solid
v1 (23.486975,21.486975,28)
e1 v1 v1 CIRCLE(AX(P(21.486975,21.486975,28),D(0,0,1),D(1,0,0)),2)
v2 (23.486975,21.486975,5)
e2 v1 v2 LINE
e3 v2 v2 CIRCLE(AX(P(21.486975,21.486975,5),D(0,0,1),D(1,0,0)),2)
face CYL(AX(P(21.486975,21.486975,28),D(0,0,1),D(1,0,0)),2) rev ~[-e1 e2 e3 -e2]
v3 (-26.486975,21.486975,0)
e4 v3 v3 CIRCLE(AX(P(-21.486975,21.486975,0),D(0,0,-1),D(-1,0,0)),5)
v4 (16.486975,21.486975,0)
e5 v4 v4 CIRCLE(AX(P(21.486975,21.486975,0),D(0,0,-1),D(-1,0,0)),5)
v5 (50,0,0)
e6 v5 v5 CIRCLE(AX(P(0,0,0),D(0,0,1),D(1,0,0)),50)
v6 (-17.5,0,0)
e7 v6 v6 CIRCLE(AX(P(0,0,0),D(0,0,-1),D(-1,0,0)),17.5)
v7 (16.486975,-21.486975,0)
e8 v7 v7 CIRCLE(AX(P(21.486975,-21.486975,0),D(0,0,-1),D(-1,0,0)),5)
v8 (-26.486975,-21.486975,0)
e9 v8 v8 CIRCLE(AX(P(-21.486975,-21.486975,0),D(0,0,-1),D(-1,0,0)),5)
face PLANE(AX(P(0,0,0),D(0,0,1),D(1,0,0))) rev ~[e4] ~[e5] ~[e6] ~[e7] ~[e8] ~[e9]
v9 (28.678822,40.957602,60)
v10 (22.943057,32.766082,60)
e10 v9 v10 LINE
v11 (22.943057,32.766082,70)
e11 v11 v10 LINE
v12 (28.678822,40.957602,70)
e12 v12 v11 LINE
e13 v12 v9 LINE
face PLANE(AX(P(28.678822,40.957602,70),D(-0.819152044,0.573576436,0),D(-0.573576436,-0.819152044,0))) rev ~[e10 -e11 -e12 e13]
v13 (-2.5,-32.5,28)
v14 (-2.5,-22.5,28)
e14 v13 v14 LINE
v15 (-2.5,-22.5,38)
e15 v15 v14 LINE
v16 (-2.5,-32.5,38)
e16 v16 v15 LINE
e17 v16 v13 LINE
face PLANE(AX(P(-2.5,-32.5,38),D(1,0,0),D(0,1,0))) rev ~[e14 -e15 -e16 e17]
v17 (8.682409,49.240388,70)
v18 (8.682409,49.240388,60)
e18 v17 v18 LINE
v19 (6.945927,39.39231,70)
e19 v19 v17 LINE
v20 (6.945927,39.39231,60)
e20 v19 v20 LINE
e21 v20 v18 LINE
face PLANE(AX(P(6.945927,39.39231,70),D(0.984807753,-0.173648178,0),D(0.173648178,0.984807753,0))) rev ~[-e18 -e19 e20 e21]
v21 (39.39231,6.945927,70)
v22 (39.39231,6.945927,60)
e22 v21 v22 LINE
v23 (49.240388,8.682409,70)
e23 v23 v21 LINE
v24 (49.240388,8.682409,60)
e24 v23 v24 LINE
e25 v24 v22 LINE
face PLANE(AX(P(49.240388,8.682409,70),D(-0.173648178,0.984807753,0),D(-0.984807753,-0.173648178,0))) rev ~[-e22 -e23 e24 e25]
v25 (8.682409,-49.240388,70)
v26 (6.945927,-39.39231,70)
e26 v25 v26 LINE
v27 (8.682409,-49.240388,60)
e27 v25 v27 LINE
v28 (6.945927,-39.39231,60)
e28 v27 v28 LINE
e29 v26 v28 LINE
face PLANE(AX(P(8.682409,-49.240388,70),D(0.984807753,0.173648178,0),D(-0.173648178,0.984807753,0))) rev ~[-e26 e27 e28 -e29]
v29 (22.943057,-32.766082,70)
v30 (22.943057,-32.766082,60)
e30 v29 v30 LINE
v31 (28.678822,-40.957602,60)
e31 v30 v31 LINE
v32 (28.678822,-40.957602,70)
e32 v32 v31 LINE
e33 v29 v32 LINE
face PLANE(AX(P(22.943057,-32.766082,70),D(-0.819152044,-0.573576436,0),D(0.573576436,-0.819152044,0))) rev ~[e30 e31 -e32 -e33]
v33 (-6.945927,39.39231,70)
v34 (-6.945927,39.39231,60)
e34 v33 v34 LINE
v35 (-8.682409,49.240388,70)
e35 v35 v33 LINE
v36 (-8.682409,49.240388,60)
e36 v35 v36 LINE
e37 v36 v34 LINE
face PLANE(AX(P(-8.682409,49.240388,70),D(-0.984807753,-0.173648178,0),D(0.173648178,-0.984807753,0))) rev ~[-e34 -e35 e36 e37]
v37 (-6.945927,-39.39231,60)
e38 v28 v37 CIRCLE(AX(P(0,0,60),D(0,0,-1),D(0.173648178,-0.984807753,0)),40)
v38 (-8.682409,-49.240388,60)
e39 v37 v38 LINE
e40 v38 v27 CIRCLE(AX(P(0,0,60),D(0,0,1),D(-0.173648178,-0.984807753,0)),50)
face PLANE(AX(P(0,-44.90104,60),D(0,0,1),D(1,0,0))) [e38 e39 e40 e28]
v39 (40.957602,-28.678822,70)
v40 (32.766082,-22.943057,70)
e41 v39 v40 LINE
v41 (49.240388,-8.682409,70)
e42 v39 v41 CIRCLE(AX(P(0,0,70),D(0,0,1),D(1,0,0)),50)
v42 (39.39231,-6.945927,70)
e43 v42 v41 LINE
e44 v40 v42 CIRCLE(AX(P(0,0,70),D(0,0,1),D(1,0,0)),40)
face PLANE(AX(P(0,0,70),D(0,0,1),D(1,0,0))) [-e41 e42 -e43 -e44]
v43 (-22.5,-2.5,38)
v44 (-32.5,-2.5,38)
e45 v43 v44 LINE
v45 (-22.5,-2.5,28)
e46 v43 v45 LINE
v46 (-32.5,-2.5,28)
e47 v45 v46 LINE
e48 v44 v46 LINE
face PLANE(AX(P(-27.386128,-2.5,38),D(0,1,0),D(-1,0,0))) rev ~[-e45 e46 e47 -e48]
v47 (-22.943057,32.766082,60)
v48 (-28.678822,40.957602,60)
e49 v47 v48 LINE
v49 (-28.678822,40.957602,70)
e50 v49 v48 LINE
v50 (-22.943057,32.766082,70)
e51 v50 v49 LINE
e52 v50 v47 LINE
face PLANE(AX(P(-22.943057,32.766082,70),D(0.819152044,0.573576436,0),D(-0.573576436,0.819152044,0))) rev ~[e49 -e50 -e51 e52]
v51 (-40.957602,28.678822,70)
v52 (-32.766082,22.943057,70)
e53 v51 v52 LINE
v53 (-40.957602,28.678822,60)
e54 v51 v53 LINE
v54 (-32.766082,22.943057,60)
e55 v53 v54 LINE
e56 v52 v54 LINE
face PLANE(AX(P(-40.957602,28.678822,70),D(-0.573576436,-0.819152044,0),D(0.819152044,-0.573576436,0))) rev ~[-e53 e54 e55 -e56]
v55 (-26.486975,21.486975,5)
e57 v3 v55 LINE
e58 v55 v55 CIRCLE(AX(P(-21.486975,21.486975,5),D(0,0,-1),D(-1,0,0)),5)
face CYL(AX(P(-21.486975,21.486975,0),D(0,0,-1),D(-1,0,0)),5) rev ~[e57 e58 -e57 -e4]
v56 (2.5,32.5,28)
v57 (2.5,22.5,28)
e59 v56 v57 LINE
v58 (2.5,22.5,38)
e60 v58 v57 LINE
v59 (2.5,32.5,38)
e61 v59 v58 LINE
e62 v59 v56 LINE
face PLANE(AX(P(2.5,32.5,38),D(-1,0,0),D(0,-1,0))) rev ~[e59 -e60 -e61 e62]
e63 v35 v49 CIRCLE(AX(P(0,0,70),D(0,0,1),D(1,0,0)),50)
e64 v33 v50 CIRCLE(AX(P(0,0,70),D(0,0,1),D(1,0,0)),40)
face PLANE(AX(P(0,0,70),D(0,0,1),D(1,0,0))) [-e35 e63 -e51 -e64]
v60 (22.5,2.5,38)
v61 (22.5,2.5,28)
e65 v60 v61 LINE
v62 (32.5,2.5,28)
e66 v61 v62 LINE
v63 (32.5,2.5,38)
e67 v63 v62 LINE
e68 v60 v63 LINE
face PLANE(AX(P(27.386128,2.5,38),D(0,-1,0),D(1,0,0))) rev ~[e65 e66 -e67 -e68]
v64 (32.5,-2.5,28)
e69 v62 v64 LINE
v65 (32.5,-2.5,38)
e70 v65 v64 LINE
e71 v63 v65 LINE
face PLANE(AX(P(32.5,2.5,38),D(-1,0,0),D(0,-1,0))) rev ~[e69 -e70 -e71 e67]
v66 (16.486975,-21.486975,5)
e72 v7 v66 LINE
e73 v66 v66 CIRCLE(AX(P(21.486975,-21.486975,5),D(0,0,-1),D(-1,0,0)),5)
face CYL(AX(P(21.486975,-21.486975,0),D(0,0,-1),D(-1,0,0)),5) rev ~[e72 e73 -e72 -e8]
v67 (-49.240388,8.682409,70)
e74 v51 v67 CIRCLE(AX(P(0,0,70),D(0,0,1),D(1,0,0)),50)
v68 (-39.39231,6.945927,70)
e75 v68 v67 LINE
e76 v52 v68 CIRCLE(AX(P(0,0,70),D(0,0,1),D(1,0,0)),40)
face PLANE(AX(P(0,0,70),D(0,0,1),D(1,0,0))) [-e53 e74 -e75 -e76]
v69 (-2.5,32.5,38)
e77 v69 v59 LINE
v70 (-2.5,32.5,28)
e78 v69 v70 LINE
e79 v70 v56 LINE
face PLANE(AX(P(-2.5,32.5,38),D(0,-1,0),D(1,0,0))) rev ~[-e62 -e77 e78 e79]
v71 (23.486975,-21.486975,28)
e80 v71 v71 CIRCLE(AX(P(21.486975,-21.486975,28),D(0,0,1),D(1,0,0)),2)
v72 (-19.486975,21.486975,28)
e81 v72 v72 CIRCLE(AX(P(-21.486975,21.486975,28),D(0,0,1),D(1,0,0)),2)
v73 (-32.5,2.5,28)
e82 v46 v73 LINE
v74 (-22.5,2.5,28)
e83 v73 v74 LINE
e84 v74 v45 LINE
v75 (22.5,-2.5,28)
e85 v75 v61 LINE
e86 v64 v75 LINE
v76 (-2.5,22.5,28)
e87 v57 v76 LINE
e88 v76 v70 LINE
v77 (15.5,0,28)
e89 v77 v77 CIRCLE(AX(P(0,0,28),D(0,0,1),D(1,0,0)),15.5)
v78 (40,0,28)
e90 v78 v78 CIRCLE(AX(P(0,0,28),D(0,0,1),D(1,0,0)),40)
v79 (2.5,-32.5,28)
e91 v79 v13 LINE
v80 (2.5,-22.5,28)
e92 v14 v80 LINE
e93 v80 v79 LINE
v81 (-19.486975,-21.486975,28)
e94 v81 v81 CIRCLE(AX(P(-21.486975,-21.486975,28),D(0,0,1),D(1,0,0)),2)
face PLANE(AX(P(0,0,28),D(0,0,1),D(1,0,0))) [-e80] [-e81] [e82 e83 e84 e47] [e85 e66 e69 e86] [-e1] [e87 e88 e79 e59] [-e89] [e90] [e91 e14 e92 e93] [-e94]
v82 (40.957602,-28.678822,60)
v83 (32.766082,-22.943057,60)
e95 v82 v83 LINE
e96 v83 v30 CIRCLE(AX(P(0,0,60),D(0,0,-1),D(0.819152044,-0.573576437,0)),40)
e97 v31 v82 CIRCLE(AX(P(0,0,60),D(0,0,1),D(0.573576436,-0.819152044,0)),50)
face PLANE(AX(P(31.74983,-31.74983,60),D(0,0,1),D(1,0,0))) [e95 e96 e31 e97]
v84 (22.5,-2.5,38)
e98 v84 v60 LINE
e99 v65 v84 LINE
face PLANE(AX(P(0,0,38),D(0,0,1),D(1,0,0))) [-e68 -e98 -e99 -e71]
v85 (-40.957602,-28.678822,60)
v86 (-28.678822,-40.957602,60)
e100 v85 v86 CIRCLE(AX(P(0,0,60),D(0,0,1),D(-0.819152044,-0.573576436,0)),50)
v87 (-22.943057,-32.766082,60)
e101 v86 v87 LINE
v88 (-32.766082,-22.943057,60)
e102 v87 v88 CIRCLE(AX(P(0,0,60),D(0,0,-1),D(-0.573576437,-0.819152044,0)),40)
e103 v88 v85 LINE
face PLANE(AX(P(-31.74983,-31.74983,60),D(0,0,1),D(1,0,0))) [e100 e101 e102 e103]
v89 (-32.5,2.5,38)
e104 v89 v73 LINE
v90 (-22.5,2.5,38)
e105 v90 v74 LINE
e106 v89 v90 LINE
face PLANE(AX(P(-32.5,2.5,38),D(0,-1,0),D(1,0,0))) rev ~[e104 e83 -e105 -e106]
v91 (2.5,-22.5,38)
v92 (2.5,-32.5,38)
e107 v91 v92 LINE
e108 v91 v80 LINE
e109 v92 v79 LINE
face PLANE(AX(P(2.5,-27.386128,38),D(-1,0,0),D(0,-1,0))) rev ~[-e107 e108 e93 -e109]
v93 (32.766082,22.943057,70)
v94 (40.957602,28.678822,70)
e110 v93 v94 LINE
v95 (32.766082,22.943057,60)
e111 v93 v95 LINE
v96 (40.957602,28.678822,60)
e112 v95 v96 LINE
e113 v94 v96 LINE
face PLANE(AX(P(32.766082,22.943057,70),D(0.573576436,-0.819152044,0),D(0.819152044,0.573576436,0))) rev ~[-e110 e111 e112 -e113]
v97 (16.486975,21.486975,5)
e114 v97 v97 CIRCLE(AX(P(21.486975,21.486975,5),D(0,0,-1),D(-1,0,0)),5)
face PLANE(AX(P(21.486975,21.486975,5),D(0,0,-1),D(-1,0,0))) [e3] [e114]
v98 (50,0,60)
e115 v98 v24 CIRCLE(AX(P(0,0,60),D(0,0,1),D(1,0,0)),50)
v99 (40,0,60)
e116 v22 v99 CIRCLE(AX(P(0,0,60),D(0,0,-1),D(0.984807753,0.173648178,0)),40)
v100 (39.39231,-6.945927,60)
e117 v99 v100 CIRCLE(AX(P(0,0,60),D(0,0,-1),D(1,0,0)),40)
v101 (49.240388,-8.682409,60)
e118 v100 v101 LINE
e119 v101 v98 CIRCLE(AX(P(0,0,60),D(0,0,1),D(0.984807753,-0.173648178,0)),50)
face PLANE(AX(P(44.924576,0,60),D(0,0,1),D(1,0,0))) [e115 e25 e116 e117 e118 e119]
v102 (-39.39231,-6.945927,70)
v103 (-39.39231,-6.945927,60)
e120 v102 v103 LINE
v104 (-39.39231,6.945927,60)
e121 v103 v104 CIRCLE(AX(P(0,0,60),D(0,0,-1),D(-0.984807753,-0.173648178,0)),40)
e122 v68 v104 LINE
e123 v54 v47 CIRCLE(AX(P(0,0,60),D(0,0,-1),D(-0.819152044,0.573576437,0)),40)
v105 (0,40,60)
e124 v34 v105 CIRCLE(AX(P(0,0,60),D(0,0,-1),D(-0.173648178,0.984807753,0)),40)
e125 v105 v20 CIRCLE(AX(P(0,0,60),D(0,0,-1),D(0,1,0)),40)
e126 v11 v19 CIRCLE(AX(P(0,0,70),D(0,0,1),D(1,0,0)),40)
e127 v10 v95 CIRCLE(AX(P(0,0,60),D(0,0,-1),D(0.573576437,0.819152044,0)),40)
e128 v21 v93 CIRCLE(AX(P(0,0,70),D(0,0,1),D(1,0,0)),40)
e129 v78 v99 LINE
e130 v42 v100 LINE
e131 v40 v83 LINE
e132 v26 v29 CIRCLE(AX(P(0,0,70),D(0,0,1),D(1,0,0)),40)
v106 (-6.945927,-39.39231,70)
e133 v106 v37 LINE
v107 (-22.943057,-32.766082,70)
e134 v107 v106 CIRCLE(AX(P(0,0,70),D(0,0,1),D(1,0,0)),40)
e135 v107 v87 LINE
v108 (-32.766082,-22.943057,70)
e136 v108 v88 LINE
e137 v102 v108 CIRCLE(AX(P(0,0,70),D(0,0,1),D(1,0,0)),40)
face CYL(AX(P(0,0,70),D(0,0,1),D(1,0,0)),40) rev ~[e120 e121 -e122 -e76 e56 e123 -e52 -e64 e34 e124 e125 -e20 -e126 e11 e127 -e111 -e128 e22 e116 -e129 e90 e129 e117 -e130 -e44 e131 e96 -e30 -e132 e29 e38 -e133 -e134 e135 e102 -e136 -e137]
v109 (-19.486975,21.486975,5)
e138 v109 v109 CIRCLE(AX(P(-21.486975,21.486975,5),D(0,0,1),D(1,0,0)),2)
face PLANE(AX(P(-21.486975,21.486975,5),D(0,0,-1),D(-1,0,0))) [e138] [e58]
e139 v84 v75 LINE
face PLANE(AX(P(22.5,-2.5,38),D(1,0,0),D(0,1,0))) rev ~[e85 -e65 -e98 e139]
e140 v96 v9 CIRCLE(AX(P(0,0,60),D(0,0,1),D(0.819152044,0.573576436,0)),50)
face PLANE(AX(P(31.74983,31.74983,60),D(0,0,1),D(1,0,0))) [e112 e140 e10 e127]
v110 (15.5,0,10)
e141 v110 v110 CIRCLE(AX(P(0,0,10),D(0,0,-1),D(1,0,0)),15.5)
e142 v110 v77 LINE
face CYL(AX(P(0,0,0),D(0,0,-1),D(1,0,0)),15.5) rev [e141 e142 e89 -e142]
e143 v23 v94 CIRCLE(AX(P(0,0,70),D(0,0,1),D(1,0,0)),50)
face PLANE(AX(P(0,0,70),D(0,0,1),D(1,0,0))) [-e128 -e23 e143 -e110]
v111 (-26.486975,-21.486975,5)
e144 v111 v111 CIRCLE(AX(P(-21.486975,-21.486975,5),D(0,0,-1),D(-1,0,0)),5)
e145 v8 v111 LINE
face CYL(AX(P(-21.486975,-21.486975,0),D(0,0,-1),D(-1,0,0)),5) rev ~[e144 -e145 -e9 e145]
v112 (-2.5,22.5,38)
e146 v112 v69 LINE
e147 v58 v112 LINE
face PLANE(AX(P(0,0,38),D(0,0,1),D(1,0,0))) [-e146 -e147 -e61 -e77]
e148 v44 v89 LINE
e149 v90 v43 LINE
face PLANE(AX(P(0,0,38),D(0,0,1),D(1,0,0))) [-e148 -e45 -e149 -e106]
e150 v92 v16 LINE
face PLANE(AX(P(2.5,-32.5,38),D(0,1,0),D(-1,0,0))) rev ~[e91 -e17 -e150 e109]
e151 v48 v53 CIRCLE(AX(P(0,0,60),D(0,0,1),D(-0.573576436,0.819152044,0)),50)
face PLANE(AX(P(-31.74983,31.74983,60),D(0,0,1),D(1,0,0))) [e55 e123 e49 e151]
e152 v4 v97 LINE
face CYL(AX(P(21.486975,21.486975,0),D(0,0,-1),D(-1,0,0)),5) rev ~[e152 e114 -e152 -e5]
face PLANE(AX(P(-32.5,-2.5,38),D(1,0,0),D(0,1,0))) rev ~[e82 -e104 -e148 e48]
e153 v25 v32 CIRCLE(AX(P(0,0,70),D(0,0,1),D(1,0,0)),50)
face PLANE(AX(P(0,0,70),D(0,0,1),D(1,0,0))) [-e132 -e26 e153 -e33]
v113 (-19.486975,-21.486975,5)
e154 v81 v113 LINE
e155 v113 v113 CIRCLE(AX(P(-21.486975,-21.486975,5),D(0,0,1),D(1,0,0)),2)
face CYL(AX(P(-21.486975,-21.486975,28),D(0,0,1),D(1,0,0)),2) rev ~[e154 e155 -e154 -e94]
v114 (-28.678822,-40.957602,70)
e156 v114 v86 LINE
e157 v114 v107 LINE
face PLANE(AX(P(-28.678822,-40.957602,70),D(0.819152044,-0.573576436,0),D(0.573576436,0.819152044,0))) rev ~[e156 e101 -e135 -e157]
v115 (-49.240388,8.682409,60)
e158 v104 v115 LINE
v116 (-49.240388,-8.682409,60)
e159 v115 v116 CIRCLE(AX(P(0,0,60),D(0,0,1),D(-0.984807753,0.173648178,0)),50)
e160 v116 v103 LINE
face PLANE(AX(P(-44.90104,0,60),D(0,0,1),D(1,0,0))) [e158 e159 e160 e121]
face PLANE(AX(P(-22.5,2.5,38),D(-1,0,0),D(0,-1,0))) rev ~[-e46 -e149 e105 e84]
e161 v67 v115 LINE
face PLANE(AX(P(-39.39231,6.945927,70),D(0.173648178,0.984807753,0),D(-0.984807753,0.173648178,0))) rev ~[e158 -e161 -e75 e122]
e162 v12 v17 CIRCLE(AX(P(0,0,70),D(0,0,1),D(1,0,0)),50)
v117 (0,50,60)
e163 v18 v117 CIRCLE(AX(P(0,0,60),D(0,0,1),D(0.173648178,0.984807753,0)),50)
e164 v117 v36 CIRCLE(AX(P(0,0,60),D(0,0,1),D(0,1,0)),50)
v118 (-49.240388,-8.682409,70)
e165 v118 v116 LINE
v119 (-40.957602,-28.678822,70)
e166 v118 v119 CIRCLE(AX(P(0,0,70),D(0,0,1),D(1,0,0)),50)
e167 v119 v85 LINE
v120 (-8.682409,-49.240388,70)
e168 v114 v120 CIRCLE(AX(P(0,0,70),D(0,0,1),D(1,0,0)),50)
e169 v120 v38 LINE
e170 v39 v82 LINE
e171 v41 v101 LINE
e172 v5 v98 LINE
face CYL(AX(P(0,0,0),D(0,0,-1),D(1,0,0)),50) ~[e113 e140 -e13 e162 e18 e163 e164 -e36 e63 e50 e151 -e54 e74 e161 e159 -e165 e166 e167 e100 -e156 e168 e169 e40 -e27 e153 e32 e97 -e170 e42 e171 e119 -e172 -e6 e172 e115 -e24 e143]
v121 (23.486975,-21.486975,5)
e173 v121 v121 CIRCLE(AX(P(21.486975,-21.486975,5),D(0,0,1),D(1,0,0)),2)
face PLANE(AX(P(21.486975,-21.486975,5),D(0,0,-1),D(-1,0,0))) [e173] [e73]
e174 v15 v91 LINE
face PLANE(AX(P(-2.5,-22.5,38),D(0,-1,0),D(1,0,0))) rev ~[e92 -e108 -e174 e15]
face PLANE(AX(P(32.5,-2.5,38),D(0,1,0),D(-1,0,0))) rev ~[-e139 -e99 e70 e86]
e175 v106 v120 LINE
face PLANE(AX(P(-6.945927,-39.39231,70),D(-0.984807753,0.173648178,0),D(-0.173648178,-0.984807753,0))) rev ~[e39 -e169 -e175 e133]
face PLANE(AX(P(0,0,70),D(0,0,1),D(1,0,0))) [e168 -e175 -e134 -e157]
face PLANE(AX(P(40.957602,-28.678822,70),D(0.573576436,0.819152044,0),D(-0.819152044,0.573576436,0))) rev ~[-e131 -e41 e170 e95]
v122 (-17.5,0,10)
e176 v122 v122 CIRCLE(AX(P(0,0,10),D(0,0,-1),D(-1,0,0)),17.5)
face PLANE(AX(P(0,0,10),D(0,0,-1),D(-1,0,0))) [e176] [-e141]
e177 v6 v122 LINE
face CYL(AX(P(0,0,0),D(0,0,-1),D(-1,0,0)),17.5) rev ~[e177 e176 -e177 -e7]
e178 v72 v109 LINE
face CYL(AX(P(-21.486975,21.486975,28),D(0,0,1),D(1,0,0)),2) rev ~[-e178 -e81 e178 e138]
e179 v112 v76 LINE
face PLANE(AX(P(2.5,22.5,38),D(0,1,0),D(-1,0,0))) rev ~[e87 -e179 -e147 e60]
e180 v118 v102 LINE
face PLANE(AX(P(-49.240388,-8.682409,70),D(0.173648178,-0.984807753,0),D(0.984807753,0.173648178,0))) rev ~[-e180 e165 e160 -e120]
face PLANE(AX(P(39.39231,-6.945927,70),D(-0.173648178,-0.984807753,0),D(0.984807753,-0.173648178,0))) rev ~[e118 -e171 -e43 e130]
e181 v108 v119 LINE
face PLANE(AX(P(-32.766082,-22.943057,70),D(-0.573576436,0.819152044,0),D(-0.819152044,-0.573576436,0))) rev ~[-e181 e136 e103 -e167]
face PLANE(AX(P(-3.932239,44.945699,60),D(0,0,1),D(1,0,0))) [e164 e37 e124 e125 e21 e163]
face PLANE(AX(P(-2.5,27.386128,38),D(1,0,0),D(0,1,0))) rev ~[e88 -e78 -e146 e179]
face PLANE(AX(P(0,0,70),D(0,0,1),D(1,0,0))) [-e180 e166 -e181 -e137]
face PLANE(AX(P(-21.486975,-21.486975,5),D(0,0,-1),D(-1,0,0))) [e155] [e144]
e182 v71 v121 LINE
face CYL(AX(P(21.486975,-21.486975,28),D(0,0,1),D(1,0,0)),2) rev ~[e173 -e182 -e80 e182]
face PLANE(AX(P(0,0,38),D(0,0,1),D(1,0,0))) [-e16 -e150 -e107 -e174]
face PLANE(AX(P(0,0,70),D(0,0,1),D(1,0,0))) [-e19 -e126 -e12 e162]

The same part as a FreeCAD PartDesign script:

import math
import FreeCAD as App
import Part
import Sketcher
from FreeCAD import Vector
Q = App.Units.Quantity

doc = App.newDocument("Part")
body = doc.addObject("PartDesign::Body", "Body")

# Sketch on XY plane
sketch1 = body.newObject("Sketcher::SketchObject", "Sketch")
sketch1.AttachmentSupport = (doc.getObject("XY_Plane"), [""])
sketch1.MapMode = "FlatFace"
sketch1.addGeometry(Part.Circle(Vector(0, 0, 0), Vector(0, 0, 1), 50), False)
sketch1.addGeometry(Part.Circle(Vector(0, 0, 0), Vector(0, 0, 1), 16), False)
sketch1.addConstraint(Sketcher.Constraint("Coincident", 0, 3, -1, 1))
sketch1.addConstraint(Sketcher.Constraint("Coincident", 1, 3, -1, 1))
sketch1.addConstraint(Sketcher.Constraint("Diameter", 0, Q("100 mm")))
sketch1.addConstraint(Sketcher.Constraint("Diameter", 1, Q("31 mm")))
pad1 = body.newObject("PartDesign::Pad", "Pad")
pad1.Profile = sketch1
pad1.Length = 70

# Sketch on XY plane
sketch2 = body.newObject("Sketcher::SketchObject", "Sketch001")
sketch2.AttachmentSupport = (doc.getObject("XY_Plane"), [""])
sketch2.MapMode = "FlatFace"
sketch2.AttachmentOffset = App.Placement(Vector(0, 0, 70), App.Rotation())
sketch2.addGeometry(Part.Circle(Vector(0, 0, 0), Vector(0, 0, 1), 40), False)
sketch2.addConstraint(Sketcher.Constraint("Coincident", 0, 3, -1, 1))
sketch2.addConstraint(Sketcher.Constraint("Diameter", 0, Q("80 mm")))
pocket1 = body.newObject("PartDesign::Pocket", "Pocket")
pocket1.Profile = sketch2
pocket1.Length = 32

# Sketch on XY plane
sketch3 = body.newObject("Sketcher::SketchObject", "Sketch002")
sketch3.AttachmentSupport = (doc.getObject("XY_Plane"), [""])
sketch3.MapMode = "FlatFace"
sketch3.addGeometry(Part.Circle(Vector(0, 0, 0), Vector(0, 0, 1), 18), False)
sketch3.addConstraint(Sketcher.Constraint("Coincident", 0, 3, -1, 1))
sketch3.addConstraint(Sketcher.Constraint("Diameter", 0, Q("35 mm")))
pocket2 = body.newObject("PartDesign::Pocket", "Pocket001")
pocket2.Profile = sketch3
pocket2.Length = 10
pocket2.Reversed = True

# Sketch on XY plane
sketch4 = body.newObject("Sketcher::SketchObject", "Sketch003")
sketch4.AttachmentSupport = (doc.getObject("XY_Plane"), [""])
sketch4.MapMode = "FlatFace"
sketch4.AttachmentOffset = App.Placement(Vector(0, 0, 38), App.Rotation())
sketch4.addGeometry(Part.Circle(Vector(0, 0, 0), Vector(0, 0, 1), 40), False)
sketch4.addGeometry(Part.LineSegment(Vector(-32, 2, 0), Vector(-22, 2, 0)), False)
sketch4.addGeometry(Part.LineSegment(Vector(-22, 2, 0), Vector(-22, -2, 0)), False)
sketch4.addGeometry(Part.LineSegment(Vector(-22, -2, 0), Vector(-32, -2, 0)), False)
sketch4.addGeometry(Part.LineSegment(Vector(-32, -2, 0), Vector(-32, 2, 0)), False)
sketch4.addGeometry(Part.LineSegment(Vector(-2, -32, 0), Vector(-2, -22, 0)), False)
sketch4.addGeometry(Part.LineSegment(Vector(-2, -22, 0), Vector(2, -22, 0)), False)
sketch4.addGeometry(Part.LineSegment(Vector(2, -22, 0), Vector(2, -32, 0)), False)
sketch4.addGeometry(Part.LineSegment(Vector(2, -32, 0), Vector(-2, -32, 0)), False)
sketch4.addGeometry(Part.LineSegment(Vector(32, -2, 0), Vector(22, -2, 0)), False)
sketch4.addGeometry(Part.LineSegment(Vector(22, -2, 0), Vector(22, 2, 0)), False)
sketch4.addGeometry(Part.LineSegment(Vector(22, 2, 0), Vector(32, 2, 0)), False)
sketch4.addGeometry(Part.LineSegment(Vector(32, 2, 0), Vector(32, -2, 0)), False)
sketch4.addGeometry(Part.LineSegment(Vector(2, 32, 0), Vector(2, 22, 0)), False)
sketch4.addGeometry(Part.LineSegment(Vector(2, 22, 0), Vector(-2, 22, 0)), False)
sketch4.addGeometry(Part.LineSegment(Vector(-2, 22, 0), Vector(-2, 32, 0)), False)
sketch4.addGeometry(Part.LineSegment(Vector(-2, 32, 0), Vector(2, 32, 0)), False)
sketch4.addGeometry(Part.Circle(Vector(0, 0, 0), Vector(0, 0, 1), 16), False)
sketch4.addConstraint(Sketcher.Constraint("Coincident", 1, 2, 2, 1))
sketch4.addConstraint(Sketcher.Constraint("Coincident", 2, 2, 3, 1))
sketch4.addConstraint(Sketcher.Constraint("Coincident", 3, 2, 4, 1))
sketch4.addConstraint(Sketcher.Constraint("Coincident", 4, 2, 1, 1))
sketch4.addConstraint(Sketcher.Constraint("Coincident", 5, 2, 6, 1))
sketch4.addConstraint(Sketcher.Constraint("Coincident", 6, 2, 7, 1))
sketch4.addConstraint(Sketcher.Constraint("Coincident", 7, 2, 8, 1))
sketch4.addConstraint(Sketcher.Constraint("Coincident", 8, 2, 5, 1))
sketch4.addConstraint(Sketcher.Constraint("Coincident", 9, 2, 10, 1))
sketch4.addConstraint(Sketcher.Constraint("Coincident", 10, 2, 11, 1))
sketch4.addConstraint(Sketcher.Constraint("Coincident", 11, 2, 12, 1))
sketch4.addConstraint(Sketcher.Constraint("Coincident", 12, 2, 9, 1))
sketch4.addConstraint(Sketcher.Constraint("Coincident", 13, 2, 14, 1))
sketch4.addConstraint(Sketcher.Constraint("Coincident", 14, 2, 15, 1))
sketch4.addConstraint(Sketcher.Constraint("Coincident", 15, 2, 16, 1))
sketch4.addConstraint(Sketcher.Constraint("Coincident", 16, 2, 13, 1))
sketch4.addConstraint(Sketcher.Constraint("Horizontal", 1))
sketch4.addConstraint(Sketcher.Constraint("Vertical", 2))
sketch4.addConstraint(Sketcher.Constraint("Horizontal", 3))
sketch4.addConstraint(Sketcher.Constraint("Vertical", 4))
sketch4.addConstraint(Sketcher.Constraint("Vertical", 5))
sketch4.addConstraint(Sketcher.Constraint("Horizontal", 6))
sketch4.addConstraint(Sketcher.Constraint("Vertical", 7))
sketch4.addConstraint(Sketcher.Constraint("Horizontal", 8))
sketch4.addConstraint(Sketcher.Constraint("Horizontal", 9))
sketch4.addConstraint(Sketcher.Constraint("Vertical", 10))
sketch4.addConstraint(Sketcher.Constraint("Horizontal", 11))
sketch4.addConstraint(Sketcher.Constraint("Vertical", 12))
sketch4.addConstraint(Sketcher.Constraint("Vertical", 13))
sketch4.addConstraint(Sketcher.Constraint("Horizontal", 14))
sketch4.addConstraint(Sketcher.Constraint("Vertical", 15))
sketch4.addConstraint(Sketcher.Constraint("Horizontal", 16))
sketch4.addConstraint(Sketcher.Constraint("Coincident", 0, 3, -1, 1))
sketch4.addConstraint(Sketcher.Constraint("Coincident", 17, 3, -1, 1))
sketch4.addConstraint(Sketcher.Constraint("Symmetric", 1, 2, 9, 2, -1, 1))
sketch4.addConstraint(Sketcher.Constraint("Symmetric", 3, 2, 11, 2, -1, 1))
sketch4.addConstraint(Sketcher.Constraint("Symmetric", 5, 2, 13, 2, -1, 1))
sketch4.addConstraint(Sketcher.Constraint("Symmetric", 7, 2, 15, 2, -1, 1))
sketch4.addConstraint(Sketcher.Constraint("Horizontal", 3, 2, 9, 2))
sketch4.addConstraint(Sketcher.Constraint("Vertical", 7, 2, 13, 2))
sketch4.addConstraint(Sketcher.Constraint("Equal", 16, 2))
sketch4.addConstraint(Sketcher.Constraint("Equal", 11, 5))
sketch4.addConstraint(Sketcher.Constraint("Diameter", 0, Q("80 mm")))
sketch4.addConstraint(Sketcher.Constraint("Diameter", 17, Q("31 mm")))
sketch4.addConstraint(Sketcher.Constraint("DistanceX", 1, 1, 1, 2, Q("10 mm")))
sketch4.addConstraint(Sketcher.Constraint("DistanceX", 6, 1, 6, 2, Q("5 mm")))
sketch4.addConstraint(Sketcher.Constraint("DistanceX", 2, 2, 5, 2, Q("20 mm")))
sketch4.addConstraint(Sketcher.Constraint("DistanceY", 5, 2, 2, 2, Q("20 mm")))
pocket3 = body.newObject("PartDesign::Pocket", "Pocket002")
pocket3.Profile = sketch4
pocket3.Length = 10

# Sketch on XY plane
sketch5 = body.newObject("Sketcher::SketchObject", "Sketch004")
sketch5.AttachmentSupport = (doc.getObject("XY_Plane"), [""])
sketch5.MapMode = "FlatFace"
sketch5.AttachmentOffset = App.Placement(Vector(0, 0, 28), App.Rotation())
sketch5.addGeometry(Part.Circle(Vector(21.5, 21.5, 0), Vector(0, 0, 1), 2), False)
sketch5.addGeometry(Part.Circle(Vector(21.5, -21.5, 0), Vector(0, 0, 1), 2), False)
sketch5.addGeometry(Part.Circle(Vector(-21.5, -21.5, 0), Vector(0, 0, 1), 2), False)
sketch5.addGeometry(Part.Circle(Vector(-21.5, 21.5, 0), Vector(0, 0, 1), 2), False)
sketch5.addConstraint(Sketcher.Constraint("Equal", 0, 1))
sketch5.addConstraint(Sketcher.Constraint("Equal", 1, 2))
sketch5.addConstraint(Sketcher.Constraint("Equal", 2, 3))
sketch5.addConstraint(Sketcher.Constraint("Symmetric", 0, 3, 2, 3, -1, 1))
sketch5.addConstraint(Sketcher.Constraint("Symmetric", 1, 3, 3, 3, -1, 1))
sketch5.addConstraint(Sketcher.Constraint("Symmetric", 1, 3, 2, 3, -2))
sketch5.addConstraint(Sketcher.Constraint("Diameter", 0, Q("4 mm")))
sketch5.addConstraint(Sketcher.Constraint("DistanceY", 1, 3, 0, 3, Q("42.97395 mm")))
sketch5.addConstraint(Sketcher.Constraint("DistanceX", 2, 3, 1, 3, Q("42.97395 mm")))
pocket4 = body.newObject("PartDesign::Pocket", "Pocket003")
pocket4.Profile = sketch5
pocket4.Type = "ThroughAll"

# Sketch on XY plane
sketch6 = body.newObject("Sketcher::SketchObject", "Sketch005")
sketch6.AttachmentSupport = (doc.getObject("XY_Plane"), [""])
sketch6.MapMode = "FlatFace"
sketch6.addGeometry(Part.Circle(Vector(21, 21, 0), Vector(0, 0, 1), 5), False)
sketch6.addGeometry(Part.Circle(Vector(-21, 21, 0), Vector(0, 0, 1), 5), False)
sketch6.addGeometry(Part.Circle(Vector(-21, -21, 0), Vector(0, 0, 1), 5), False)
sketch6.addGeometry(Part.Circle(Vector(21, -21, 0), Vector(0, 0, 1), 5), False)
sketch6.addConstraint(Sketcher.Constraint("Equal", 0, 1))
sketch6.addConstraint(Sketcher.Constraint("Equal", 1, 2))
sketch6.addConstraint(Sketcher.Constraint("Equal", 2, 3))
sketch6.addConstraint(Sketcher.Constraint("Symmetric", 0, 3, 2, 3, -1, 1))
sketch6.addConstraint(Sketcher.Constraint("Symmetric", 1, 3, 3, 3, -1, 1))
sketch6.addConstraint(Sketcher.Constraint("Symmetric", 0, 3, 1, 3, -2))
sketch6.addConstraint(Sketcher.Constraint("Diameter", 0, Q("10 mm")))
sketch6.addConstraint(Sketcher.Constraint("DistanceX", 1, 3, 0, 3, Q("42.97395 mm")))
sketch6.addConstraint(Sketcher.Constraint("DistanceY", 2, 3, 1, 3, Q("42.97395 mm")))
pocket5 = body.newObject("PartDesign::Pocket", "Pocket004")
pocket5.Profile = sketch6
pocket5.Length = 5
pocket5.Reversed = True

# Sketch on XY plane
sketch7 = body.newObject("Sketcher::SketchObject", "Sketch006")
sketch7.AttachmentSupport = (doc.getObject("XY_Plane"), [""])
sketch7.MapMode = "FlatFace"
sketch7.AttachmentOffset = App.Placement(Vector(0, 0, 70), App.Rotation())
sketch7.addGeometry(Part.ArcOfCircle(Part.Circle(Vector(0, 0, 0), Vector(0, 0, 1), 40), math.radians(90), math.radians(100)), False)
sketch7.addGeometry(Part.ArcOfCircle(Part.Circle(Vector(0, 0, 0), Vector(0, 0, 1), 40), math.radians(80), math.radians(90)), False)
sketch7.addGeometry(Part.LineSegment(Vector(7, 39, 0), Vector(9, 49, 0)), False)
sketch7.addGeometry(Part.ArcOfCircle(Part.Circle(Vector(0, 0, 0), Vector(0, 0, 1), 50), math.radians(80), math.radians(90)), False)
sketch7.addGeometry(Part.ArcOfCircle(Part.Circle(Vector(0, 0, 0), Vector(0, 0, 1), 50), math.radians(90), math.radians(100)), False)
sketch7.addGeometry(Part.LineSegment(Vector(-9, 49, 0), Vector(-7, 39, 0)), False)
sketch7.addGeometry(Part.ArcOfCircle(Part.Circle(Vector(0, 0, 0), Vector(0, 0, 1), 40), math.radians(35), math.radians(55)), False)
sketch7.addGeometry(Part.LineSegment(Vector(33, 23, 0), Vector(41, 29, 0)), False)
sketch7.addGeometry(Part.ArcOfCircle(Part.Circle(Vector(0, 0, 0), Vector(0, 0, 1), 50), math.radians(35), math.radians(55)), False)
sketch7.addGeometry(Part.LineSegment(Vector(29, 41, 0), Vector(23, 33, 0)), False)
sketch7.addGeometry(Part.ArcOfCircle(Part.Circle(Vector(0, 0, 0), Vector(0, 0, 1), 40), math.radians(-10), math.radians(0)), False)
sketch7.addGeometry(Part.LineSegment(Vector(39, -7, 0), Vector(49, -9, 0)), False)
sketch7.addGeometry(Part.ArcOfCircle(Part.Circle(Vector(0, 0, 0), Vector(0, 0, 1), 50), math.radians(-10), math.radians(0)), False)
sketch7.addGeometry(Part.ArcOfCircle(Part.Circle(Vector(0, 0, 0), Vector(0, 0, 1), 50), math.radians(0), math.radians(10)), False)
sketch7.addGeometry(Part.LineSegment(Vector(49, 9, 0), Vector(39, 7, 0)), False)
sketch7.addGeometry(Part.ArcOfCircle(Part.Circle(Vector(0, 0, 0), Vector(0, 0, 1), 40), math.radians(0), math.radians(10)), False)
sketch7.addGeometry(Part.ArcOfCircle(Part.Circle(Vector(0, 0, 0), Vector(0, 0, 1), 40), math.radians(-55), math.radians(-35)), False)
sketch7.addGeometry(Part.LineSegment(Vector(23, -33, 0), Vector(29, -41, 0)), False)
sketch7.addGeometry(Part.ArcOfCircle(Part.Circle(Vector(0, 0, 0), Vector(0, 0, 1), 50), math.radians(-55), math.radians(-35)), False)
sketch7.addGeometry(Part.LineSegment(Vector(41, -29, 0), Vector(33, -23, 0)), False)
sketch7.addGeometry(Part.ArcOfCircle(Part.Circle(Vector(0, 0, 0), Vector(0, 0, 1), 40), math.radians(125), math.radians(145)), False)
sketch7.addGeometry(Part.LineSegment(Vector(-23, 33, 0), Vector(-29, 41, 0)), False)
sketch7.addGeometry(Part.ArcOfCircle(Part.Circle(Vector(0, 0, 0), Vector(0, 0, 1), 50), math.radians(125), math.radians(145)), False)
sketch7.addGeometry(Part.LineSegment(Vector(-41, 29, 0), Vector(-33, 23, 0)), False)
sketch7.addGeometry(Part.ArcOfCircle(Part.Circle(Vector(0, 0, 0), Vector(0, 0, 1), 40), math.radians(170), math.radians(190)), False)
sketch7.addGeometry(Part.LineSegment(Vector(-39, 7, 0), Vector(-49, 9, 0)), False)
sketch7.addGeometry(Part.ArcOfCircle(Part.Circle(Vector(0, 0, 0), Vector(0, 0, 1), 50), math.radians(170), math.radians(190)), False)
sketch7.addGeometry(Part.LineSegment(Vector(-49, -9, 0), Vector(-39, -7, 0)), False)
sketch7.addGeometry(Part.ArcOfCircle(Part.Circle(Vector(0, 0, 0), Vector(0, 0, 1), 40), math.radians(-145), math.radians(-125)), False)
sketch7.addGeometry(Part.LineSegment(Vector(-33, -23, 0), Vector(-41, -29, 0)), False)
sketch7.addGeometry(Part.ArcOfCircle(Part.Circle(Vector(0, 0, 0), Vector(0, 0, 1), 50), math.radians(-145), math.radians(-125)), False)
sketch7.addGeometry(Part.LineSegment(Vector(-29, -41, 0), Vector(-23, -33, 0)), False)
sketch7.addGeometry(Part.ArcOfCircle(Part.Circle(Vector(0, 0, 0), Vector(0, 0, 1), 40), math.radians(-100), math.radians(-80)), False)
sketch7.addGeometry(Part.LineSegment(Vector(-7, -39, 0), Vector(-9, -49, 0)), False)
sketch7.addGeometry(Part.ArcOfCircle(Part.Circle(Vector(0, 0, 0), Vector(0, 0, 1), 50), math.radians(-100), math.radians(-80)), False)
sketch7.addGeometry(Part.LineSegment(Vector(9, -49, 0), Vector(7, -39, 0)), False)
sketch7.addConstraint(Sketcher.Constraint("Tangent", 0, 1, 1, 2))
sketch7.addConstraint(Sketcher.Constraint("Coincident", 1, 1, 2, 1))
sketch7.addConstraint(Sketcher.Constraint("Coincident", 2, 2, 3, 1))
sketch7.addConstraint(Sketcher.Constraint("Tangent", 3, 2, 4, 1))
sketch7.addConstraint(Sketcher.Constraint("Coincident", 4, 2, 5, 1))
sketch7.addConstraint(Sketcher.Constraint("Coincident", 5, 2, 0, 2))
sketch7.addConstraint(Sketcher.Constraint("Coincident", 6, 1, 7, 1))
sketch7.addConstraint(Sketcher.Constraint("Coincident", 7, 2, 8, 1))
sketch7.addConstraint(Sketcher.Constraint("Coincident", 8, 2, 9, 1))
sketch7.addConstraint(Sketcher.Constraint("Coincident", 9, 2, 6, 2))
sketch7.addConstraint(Sketcher.Constraint("Coincident", 10, 1, 11, 1))
sketch7.addConstraint(Sketcher.Constraint("Coincident", 11, 2, 12, 1))
sketch7.addConstraint(Sketcher.Constraint("Tangent", 12, 2, 13, 1))
sketch7.addConstraint(Sketcher.Constraint("Coincident", 13, 2, 14, 1))
sketch7.addConstraint(Sketcher.Constraint("Coincident", 14, 2, 15, 2))
sketch7.addConstraint(Sketcher.Constraint("Tangent", 15, 1, 10, 2))
sketch7.addConstraint(Sketcher.Constraint("Coincident", 16, 1, 17, 1))
sketch7.addConstraint(Sketcher.Constraint("Coincident", 17, 2, 18, 1))
sketch7.addConstraint(Sketcher.Constraint("Coincident", 18, 2, 19, 1))
sketch7.addConstraint(Sketcher.Constraint("Coincident", 19, 2, 16, 2))
sketch7.addConstraint(Sketcher.Constraint("Coincident", 20, 1, 21, 1))
sketch7.addConstraint(Sketcher.Constraint("Coincident", 21, 2, 22, 1))
sketch7.addConstraint(Sketcher.Constraint("Coincident", 22, 2, 23, 1))
sketch7.addConstraint(Sketcher.Constraint("Coincident", 23, 2, 20, 2))
sketch7.addConstraint(Sketcher.Constraint("Coincident", 24, 1, 25, 1))
sketch7.addConstraint(Sketcher.Constraint("Coincident", 25, 2, 26, 1))
sketch7.addConstraint(Sketcher.Constraint("Coincident", 26, 2, 27, 1))
sketch7.addConstraint(Sketcher.Constraint("Coincident", 27, 2, 24, 2))
sketch7.addConstraint(Sketcher.Constraint("Coincident", 28, 1, 29, 1))
sketch7.addConstraint(Sketcher.Constraint("Coincident", 29, 2, 30, 1))
sketch7.addConstraint(Sketcher.Constraint("Coincident", 30, 2, 31, 1))
sketch7.addConstraint(Sketcher.Constraint("Coincident", 31, 2, 28, 2))
sketch7.addConstraint(Sketcher.Constraint("Coincident", 32, 1, 33, 1))
sketch7.addConstraint(Sketcher.Constraint("Coincident", 33, 2, 34, 1))
sketch7.addConstraint(Sketcher.Constraint("Coincident", 34, 2, 35, 1))
sketch7.addConstraint(Sketcher.Constraint("Coincident", 35, 2, 32, 2))
sketch7.addConstraint(Sketcher.Constraint("Coincident", 0, 3, -1, 1))
sketch7.addConstraint(Sketcher.Constraint("Coincident", 3, 3, -1, 1))
sketch7.addConstraint(Sketcher.Constraint("Coincident", 6, 3, -1, 1))
sketch7.addConstraint(Sketcher.Constraint("Coincident", 8, 3, -1, 1))
sketch7.addConstraint(Sketcher.Constraint("Coincident", 10, 3, -1, 1))
sketch7.addConstraint(Sketcher.Constraint("Coincident", 12, 3, -1, 1))
sketch7.addConstraint(Sketcher.Constraint("Coincident", 16, 3, -1, 1))
sketch7.addConstraint(Sketcher.Constraint("Coincident", 18, 3, -1, 1))
sketch7.addConstraint(Sketcher.Constraint("Coincident", 20, 3, -1, 1))
sketch7.addConstraint(Sketcher.Constraint("Coincident", 22, 3, -1, 1))
sketch7.addConstraint(Sketcher.Constraint("Coincident", 24, 3, -1, 1))
sketch7.addConstraint(Sketcher.Constraint("Coincident", 26, 3, -1, 1))
sketch7.addConstraint(Sketcher.Constraint("Coincident", 28, 3, -1, 1))
sketch7.addConstraint(Sketcher.Constraint("Coincident", 30, 3, -1, 1))
sketch7.addConstraint(Sketcher.Constraint("Coincident", 32, 3, -1, 1))
sketch7.addConstraint(Sketcher.Constraint("Coincident", 34, 3, -1, 1))
sketch7.addConstraint(Sketcher.Constraint("Equal", 0, 1))
sketch7.addConstraint(Sketcher.Constraint("Equal", 3, 4))
sketch7.addConstraint(Sketcher.Constraint("Equal", 1, 6))
sketch7.addConstraint(Sketcher.Constraint("Equal", 4, 8))
sketch7.addConstraint(Sketcher.Constraint("Equal", 6, 10))
sketch7.addConstraint(Sketcher.Constraint("Equal", 8, 12))
sketch7.addConstraint(Sketcher.Constraint("Equal", 12, 13))
sketch7.addConstraint(Sketcher.Constraint("Equal", 10, 15))
sketch7.addConstraint(Sketcher.Constraint("Equal", 15, 16))
sketch7.addConstraint(Sketcher.Constraint("Equal", 13, 18))
sketch7.addConstraint(Sketcher.Constraint("Equal", 16, 20))
sketch7.addConstraint(Sketcher.Constraint("Equal", 18, 22))
sketch7.addConstraint(Sketcher.Constraint("Equal", 20, 24))
sketch7.addConstraint(Sketcher.Constraint("Equal", 22, 26))
sketch7.addConstraint(Sketcher.Constraint("Equal", 24, 28))
sketch7.addConstraint(Sketcher.Constraint("Equal", 26, 30))
sketch7.addConstraint(Sketcher.Constraint("Equal", 28, 32))
sketch7.addConstraint(Sketcher.Constraint("Equal", 30, 34))
sketch7.addConstraint(Sketcher.Constraint("PointOnObject", 0, 1, -2))
sketch7.addConstraint(Sketcher.Constraint("PointOnObject", 3, 2, -2))
sketch7.addConstraint(Sketcher.Constraint("PointOnObject", 12, 2, -1))
sketch7.addConstraint(Sketcher.Constraint("PointOnObject", 15, 1, -1))
sketch7.addConstraint(Sketcher.Constraint("Perpendicular", 2, 11))
sketch7.addConstraint(Sketcher.Constraint("Perpendicular", 5, 14))
sketch7.addConstraint(Sketcher.Constraint("Perpendicular", 7, 17))
sketch7.addConstraint(Sketcher.Constraint("Perpendicular", 9, 19))
sketch7.addConstraint(Sketcher.Constraint("Parallel", 17, 21))
sketch7.addConstraint(Sketcher.Constraint("Parallel", 19, 23))
sketch7.addConstraint(Sketcher.Constraint("Parallel", 11, 25))
sketch7.addConstraint(Sketcher.Constraint("Parallel", 14, 27))
sketch7.addConstraint(Sketcher.Constraint("Perpendicular", 21, 29))
sketch7.addConstraint(Sketcher.Constraint("Perpendicular", 23, 31))
sketch7.addConstraint(Sketcher.Constraint("Perpendicular", 25, 33))
sketch7.addConstraint(Sketcher.Constraint("Perpendicular", 27, 35))
sketch7.addConstraint(Sketcher.Constraint("Horizontal", 2, 2, 4, 2))
sketch7.addConstraint(Sketcher.Constraint("Horizontal", 1, 1, 5, 2))
sketch7.addConstraint(Sketcher.Constraint("Horizontal", 9, 2, 20, 1))
sketch7.addConstraint(Sketcher.Constraint("Horizontal", 8, 2, 21, 2))
sketch7.addConstraint(Sketcher.Constraint("Horizontal", 7, 2, 22, 2))
sketch7.addConstraint(Sketcher.Constraint("Horizontal", 14, 2, 24, 1))
sketch7.addConstraint(Sketcher.Constraint("Horizontal", 11, 2, 26, 2))
sketch7.addConstraint(Sketcher.Constraint("Horizontal", 19, 2, 28, 1))
sketch7.addConstraint(Sketcher.Constraint("Horizontal", 17, 2, 30, 2))
sketch7.addConstraint(Sketcher.Constraint("Horizontal", 33, 2, 34, 2))
sketch7.addConstraint(Sketcher.Constraint("Vertical", 11, 2, 13, 2))
sketch7.addConstraint(Sketcher.Constraint("Vertical", 9, 2, 16, 1))
sketch7.addConstraint(Sketcher.Constraint("Vertical", 7, 2, 18, 2))
sketch7.addConstraint(Sketcher.Constraint("Vertical", 5, 2, 32, 1))
sketch7.addConstraint(Sketcher.Constraint("Radius", 0, Q("40 mm")))
sketch7.addConstraint(Sketcher.Constraint("Radius", 3, Q("50 mm")))
sketch7.addConstraint(Sketcher.Constraint("Angle", 2, Q("80 deg")))
sketch7.addConstraint(Sketcher.Constraint("Angle", 7, Q("35 deg")))
sketch7.addConstraint(Sketcher.Constraint("DistanceY", -1, 1, 1, 1, Q("39.39231 mm")))
sketch7.addConstraint(Sketcher.Constraint("DistanceX", -1, 1, 6, 1, Q("32.766082 mm")))
sketch7.addConstraint(Sketcher.Constraint("DistanceX", -1, 1, 8, 2, Q("28.678822 mm")))
sketch7.addConstraint(Sketcher.Constraint("DistanceX", -1, 1, 10, 1, Q("39.39231 mm")))
pocket6 = body.newObject("PartDesign::Pocket", "Pocket005")
pocket6.Profile = sketch7
pocket6.Length = 10

doc.recompute()
